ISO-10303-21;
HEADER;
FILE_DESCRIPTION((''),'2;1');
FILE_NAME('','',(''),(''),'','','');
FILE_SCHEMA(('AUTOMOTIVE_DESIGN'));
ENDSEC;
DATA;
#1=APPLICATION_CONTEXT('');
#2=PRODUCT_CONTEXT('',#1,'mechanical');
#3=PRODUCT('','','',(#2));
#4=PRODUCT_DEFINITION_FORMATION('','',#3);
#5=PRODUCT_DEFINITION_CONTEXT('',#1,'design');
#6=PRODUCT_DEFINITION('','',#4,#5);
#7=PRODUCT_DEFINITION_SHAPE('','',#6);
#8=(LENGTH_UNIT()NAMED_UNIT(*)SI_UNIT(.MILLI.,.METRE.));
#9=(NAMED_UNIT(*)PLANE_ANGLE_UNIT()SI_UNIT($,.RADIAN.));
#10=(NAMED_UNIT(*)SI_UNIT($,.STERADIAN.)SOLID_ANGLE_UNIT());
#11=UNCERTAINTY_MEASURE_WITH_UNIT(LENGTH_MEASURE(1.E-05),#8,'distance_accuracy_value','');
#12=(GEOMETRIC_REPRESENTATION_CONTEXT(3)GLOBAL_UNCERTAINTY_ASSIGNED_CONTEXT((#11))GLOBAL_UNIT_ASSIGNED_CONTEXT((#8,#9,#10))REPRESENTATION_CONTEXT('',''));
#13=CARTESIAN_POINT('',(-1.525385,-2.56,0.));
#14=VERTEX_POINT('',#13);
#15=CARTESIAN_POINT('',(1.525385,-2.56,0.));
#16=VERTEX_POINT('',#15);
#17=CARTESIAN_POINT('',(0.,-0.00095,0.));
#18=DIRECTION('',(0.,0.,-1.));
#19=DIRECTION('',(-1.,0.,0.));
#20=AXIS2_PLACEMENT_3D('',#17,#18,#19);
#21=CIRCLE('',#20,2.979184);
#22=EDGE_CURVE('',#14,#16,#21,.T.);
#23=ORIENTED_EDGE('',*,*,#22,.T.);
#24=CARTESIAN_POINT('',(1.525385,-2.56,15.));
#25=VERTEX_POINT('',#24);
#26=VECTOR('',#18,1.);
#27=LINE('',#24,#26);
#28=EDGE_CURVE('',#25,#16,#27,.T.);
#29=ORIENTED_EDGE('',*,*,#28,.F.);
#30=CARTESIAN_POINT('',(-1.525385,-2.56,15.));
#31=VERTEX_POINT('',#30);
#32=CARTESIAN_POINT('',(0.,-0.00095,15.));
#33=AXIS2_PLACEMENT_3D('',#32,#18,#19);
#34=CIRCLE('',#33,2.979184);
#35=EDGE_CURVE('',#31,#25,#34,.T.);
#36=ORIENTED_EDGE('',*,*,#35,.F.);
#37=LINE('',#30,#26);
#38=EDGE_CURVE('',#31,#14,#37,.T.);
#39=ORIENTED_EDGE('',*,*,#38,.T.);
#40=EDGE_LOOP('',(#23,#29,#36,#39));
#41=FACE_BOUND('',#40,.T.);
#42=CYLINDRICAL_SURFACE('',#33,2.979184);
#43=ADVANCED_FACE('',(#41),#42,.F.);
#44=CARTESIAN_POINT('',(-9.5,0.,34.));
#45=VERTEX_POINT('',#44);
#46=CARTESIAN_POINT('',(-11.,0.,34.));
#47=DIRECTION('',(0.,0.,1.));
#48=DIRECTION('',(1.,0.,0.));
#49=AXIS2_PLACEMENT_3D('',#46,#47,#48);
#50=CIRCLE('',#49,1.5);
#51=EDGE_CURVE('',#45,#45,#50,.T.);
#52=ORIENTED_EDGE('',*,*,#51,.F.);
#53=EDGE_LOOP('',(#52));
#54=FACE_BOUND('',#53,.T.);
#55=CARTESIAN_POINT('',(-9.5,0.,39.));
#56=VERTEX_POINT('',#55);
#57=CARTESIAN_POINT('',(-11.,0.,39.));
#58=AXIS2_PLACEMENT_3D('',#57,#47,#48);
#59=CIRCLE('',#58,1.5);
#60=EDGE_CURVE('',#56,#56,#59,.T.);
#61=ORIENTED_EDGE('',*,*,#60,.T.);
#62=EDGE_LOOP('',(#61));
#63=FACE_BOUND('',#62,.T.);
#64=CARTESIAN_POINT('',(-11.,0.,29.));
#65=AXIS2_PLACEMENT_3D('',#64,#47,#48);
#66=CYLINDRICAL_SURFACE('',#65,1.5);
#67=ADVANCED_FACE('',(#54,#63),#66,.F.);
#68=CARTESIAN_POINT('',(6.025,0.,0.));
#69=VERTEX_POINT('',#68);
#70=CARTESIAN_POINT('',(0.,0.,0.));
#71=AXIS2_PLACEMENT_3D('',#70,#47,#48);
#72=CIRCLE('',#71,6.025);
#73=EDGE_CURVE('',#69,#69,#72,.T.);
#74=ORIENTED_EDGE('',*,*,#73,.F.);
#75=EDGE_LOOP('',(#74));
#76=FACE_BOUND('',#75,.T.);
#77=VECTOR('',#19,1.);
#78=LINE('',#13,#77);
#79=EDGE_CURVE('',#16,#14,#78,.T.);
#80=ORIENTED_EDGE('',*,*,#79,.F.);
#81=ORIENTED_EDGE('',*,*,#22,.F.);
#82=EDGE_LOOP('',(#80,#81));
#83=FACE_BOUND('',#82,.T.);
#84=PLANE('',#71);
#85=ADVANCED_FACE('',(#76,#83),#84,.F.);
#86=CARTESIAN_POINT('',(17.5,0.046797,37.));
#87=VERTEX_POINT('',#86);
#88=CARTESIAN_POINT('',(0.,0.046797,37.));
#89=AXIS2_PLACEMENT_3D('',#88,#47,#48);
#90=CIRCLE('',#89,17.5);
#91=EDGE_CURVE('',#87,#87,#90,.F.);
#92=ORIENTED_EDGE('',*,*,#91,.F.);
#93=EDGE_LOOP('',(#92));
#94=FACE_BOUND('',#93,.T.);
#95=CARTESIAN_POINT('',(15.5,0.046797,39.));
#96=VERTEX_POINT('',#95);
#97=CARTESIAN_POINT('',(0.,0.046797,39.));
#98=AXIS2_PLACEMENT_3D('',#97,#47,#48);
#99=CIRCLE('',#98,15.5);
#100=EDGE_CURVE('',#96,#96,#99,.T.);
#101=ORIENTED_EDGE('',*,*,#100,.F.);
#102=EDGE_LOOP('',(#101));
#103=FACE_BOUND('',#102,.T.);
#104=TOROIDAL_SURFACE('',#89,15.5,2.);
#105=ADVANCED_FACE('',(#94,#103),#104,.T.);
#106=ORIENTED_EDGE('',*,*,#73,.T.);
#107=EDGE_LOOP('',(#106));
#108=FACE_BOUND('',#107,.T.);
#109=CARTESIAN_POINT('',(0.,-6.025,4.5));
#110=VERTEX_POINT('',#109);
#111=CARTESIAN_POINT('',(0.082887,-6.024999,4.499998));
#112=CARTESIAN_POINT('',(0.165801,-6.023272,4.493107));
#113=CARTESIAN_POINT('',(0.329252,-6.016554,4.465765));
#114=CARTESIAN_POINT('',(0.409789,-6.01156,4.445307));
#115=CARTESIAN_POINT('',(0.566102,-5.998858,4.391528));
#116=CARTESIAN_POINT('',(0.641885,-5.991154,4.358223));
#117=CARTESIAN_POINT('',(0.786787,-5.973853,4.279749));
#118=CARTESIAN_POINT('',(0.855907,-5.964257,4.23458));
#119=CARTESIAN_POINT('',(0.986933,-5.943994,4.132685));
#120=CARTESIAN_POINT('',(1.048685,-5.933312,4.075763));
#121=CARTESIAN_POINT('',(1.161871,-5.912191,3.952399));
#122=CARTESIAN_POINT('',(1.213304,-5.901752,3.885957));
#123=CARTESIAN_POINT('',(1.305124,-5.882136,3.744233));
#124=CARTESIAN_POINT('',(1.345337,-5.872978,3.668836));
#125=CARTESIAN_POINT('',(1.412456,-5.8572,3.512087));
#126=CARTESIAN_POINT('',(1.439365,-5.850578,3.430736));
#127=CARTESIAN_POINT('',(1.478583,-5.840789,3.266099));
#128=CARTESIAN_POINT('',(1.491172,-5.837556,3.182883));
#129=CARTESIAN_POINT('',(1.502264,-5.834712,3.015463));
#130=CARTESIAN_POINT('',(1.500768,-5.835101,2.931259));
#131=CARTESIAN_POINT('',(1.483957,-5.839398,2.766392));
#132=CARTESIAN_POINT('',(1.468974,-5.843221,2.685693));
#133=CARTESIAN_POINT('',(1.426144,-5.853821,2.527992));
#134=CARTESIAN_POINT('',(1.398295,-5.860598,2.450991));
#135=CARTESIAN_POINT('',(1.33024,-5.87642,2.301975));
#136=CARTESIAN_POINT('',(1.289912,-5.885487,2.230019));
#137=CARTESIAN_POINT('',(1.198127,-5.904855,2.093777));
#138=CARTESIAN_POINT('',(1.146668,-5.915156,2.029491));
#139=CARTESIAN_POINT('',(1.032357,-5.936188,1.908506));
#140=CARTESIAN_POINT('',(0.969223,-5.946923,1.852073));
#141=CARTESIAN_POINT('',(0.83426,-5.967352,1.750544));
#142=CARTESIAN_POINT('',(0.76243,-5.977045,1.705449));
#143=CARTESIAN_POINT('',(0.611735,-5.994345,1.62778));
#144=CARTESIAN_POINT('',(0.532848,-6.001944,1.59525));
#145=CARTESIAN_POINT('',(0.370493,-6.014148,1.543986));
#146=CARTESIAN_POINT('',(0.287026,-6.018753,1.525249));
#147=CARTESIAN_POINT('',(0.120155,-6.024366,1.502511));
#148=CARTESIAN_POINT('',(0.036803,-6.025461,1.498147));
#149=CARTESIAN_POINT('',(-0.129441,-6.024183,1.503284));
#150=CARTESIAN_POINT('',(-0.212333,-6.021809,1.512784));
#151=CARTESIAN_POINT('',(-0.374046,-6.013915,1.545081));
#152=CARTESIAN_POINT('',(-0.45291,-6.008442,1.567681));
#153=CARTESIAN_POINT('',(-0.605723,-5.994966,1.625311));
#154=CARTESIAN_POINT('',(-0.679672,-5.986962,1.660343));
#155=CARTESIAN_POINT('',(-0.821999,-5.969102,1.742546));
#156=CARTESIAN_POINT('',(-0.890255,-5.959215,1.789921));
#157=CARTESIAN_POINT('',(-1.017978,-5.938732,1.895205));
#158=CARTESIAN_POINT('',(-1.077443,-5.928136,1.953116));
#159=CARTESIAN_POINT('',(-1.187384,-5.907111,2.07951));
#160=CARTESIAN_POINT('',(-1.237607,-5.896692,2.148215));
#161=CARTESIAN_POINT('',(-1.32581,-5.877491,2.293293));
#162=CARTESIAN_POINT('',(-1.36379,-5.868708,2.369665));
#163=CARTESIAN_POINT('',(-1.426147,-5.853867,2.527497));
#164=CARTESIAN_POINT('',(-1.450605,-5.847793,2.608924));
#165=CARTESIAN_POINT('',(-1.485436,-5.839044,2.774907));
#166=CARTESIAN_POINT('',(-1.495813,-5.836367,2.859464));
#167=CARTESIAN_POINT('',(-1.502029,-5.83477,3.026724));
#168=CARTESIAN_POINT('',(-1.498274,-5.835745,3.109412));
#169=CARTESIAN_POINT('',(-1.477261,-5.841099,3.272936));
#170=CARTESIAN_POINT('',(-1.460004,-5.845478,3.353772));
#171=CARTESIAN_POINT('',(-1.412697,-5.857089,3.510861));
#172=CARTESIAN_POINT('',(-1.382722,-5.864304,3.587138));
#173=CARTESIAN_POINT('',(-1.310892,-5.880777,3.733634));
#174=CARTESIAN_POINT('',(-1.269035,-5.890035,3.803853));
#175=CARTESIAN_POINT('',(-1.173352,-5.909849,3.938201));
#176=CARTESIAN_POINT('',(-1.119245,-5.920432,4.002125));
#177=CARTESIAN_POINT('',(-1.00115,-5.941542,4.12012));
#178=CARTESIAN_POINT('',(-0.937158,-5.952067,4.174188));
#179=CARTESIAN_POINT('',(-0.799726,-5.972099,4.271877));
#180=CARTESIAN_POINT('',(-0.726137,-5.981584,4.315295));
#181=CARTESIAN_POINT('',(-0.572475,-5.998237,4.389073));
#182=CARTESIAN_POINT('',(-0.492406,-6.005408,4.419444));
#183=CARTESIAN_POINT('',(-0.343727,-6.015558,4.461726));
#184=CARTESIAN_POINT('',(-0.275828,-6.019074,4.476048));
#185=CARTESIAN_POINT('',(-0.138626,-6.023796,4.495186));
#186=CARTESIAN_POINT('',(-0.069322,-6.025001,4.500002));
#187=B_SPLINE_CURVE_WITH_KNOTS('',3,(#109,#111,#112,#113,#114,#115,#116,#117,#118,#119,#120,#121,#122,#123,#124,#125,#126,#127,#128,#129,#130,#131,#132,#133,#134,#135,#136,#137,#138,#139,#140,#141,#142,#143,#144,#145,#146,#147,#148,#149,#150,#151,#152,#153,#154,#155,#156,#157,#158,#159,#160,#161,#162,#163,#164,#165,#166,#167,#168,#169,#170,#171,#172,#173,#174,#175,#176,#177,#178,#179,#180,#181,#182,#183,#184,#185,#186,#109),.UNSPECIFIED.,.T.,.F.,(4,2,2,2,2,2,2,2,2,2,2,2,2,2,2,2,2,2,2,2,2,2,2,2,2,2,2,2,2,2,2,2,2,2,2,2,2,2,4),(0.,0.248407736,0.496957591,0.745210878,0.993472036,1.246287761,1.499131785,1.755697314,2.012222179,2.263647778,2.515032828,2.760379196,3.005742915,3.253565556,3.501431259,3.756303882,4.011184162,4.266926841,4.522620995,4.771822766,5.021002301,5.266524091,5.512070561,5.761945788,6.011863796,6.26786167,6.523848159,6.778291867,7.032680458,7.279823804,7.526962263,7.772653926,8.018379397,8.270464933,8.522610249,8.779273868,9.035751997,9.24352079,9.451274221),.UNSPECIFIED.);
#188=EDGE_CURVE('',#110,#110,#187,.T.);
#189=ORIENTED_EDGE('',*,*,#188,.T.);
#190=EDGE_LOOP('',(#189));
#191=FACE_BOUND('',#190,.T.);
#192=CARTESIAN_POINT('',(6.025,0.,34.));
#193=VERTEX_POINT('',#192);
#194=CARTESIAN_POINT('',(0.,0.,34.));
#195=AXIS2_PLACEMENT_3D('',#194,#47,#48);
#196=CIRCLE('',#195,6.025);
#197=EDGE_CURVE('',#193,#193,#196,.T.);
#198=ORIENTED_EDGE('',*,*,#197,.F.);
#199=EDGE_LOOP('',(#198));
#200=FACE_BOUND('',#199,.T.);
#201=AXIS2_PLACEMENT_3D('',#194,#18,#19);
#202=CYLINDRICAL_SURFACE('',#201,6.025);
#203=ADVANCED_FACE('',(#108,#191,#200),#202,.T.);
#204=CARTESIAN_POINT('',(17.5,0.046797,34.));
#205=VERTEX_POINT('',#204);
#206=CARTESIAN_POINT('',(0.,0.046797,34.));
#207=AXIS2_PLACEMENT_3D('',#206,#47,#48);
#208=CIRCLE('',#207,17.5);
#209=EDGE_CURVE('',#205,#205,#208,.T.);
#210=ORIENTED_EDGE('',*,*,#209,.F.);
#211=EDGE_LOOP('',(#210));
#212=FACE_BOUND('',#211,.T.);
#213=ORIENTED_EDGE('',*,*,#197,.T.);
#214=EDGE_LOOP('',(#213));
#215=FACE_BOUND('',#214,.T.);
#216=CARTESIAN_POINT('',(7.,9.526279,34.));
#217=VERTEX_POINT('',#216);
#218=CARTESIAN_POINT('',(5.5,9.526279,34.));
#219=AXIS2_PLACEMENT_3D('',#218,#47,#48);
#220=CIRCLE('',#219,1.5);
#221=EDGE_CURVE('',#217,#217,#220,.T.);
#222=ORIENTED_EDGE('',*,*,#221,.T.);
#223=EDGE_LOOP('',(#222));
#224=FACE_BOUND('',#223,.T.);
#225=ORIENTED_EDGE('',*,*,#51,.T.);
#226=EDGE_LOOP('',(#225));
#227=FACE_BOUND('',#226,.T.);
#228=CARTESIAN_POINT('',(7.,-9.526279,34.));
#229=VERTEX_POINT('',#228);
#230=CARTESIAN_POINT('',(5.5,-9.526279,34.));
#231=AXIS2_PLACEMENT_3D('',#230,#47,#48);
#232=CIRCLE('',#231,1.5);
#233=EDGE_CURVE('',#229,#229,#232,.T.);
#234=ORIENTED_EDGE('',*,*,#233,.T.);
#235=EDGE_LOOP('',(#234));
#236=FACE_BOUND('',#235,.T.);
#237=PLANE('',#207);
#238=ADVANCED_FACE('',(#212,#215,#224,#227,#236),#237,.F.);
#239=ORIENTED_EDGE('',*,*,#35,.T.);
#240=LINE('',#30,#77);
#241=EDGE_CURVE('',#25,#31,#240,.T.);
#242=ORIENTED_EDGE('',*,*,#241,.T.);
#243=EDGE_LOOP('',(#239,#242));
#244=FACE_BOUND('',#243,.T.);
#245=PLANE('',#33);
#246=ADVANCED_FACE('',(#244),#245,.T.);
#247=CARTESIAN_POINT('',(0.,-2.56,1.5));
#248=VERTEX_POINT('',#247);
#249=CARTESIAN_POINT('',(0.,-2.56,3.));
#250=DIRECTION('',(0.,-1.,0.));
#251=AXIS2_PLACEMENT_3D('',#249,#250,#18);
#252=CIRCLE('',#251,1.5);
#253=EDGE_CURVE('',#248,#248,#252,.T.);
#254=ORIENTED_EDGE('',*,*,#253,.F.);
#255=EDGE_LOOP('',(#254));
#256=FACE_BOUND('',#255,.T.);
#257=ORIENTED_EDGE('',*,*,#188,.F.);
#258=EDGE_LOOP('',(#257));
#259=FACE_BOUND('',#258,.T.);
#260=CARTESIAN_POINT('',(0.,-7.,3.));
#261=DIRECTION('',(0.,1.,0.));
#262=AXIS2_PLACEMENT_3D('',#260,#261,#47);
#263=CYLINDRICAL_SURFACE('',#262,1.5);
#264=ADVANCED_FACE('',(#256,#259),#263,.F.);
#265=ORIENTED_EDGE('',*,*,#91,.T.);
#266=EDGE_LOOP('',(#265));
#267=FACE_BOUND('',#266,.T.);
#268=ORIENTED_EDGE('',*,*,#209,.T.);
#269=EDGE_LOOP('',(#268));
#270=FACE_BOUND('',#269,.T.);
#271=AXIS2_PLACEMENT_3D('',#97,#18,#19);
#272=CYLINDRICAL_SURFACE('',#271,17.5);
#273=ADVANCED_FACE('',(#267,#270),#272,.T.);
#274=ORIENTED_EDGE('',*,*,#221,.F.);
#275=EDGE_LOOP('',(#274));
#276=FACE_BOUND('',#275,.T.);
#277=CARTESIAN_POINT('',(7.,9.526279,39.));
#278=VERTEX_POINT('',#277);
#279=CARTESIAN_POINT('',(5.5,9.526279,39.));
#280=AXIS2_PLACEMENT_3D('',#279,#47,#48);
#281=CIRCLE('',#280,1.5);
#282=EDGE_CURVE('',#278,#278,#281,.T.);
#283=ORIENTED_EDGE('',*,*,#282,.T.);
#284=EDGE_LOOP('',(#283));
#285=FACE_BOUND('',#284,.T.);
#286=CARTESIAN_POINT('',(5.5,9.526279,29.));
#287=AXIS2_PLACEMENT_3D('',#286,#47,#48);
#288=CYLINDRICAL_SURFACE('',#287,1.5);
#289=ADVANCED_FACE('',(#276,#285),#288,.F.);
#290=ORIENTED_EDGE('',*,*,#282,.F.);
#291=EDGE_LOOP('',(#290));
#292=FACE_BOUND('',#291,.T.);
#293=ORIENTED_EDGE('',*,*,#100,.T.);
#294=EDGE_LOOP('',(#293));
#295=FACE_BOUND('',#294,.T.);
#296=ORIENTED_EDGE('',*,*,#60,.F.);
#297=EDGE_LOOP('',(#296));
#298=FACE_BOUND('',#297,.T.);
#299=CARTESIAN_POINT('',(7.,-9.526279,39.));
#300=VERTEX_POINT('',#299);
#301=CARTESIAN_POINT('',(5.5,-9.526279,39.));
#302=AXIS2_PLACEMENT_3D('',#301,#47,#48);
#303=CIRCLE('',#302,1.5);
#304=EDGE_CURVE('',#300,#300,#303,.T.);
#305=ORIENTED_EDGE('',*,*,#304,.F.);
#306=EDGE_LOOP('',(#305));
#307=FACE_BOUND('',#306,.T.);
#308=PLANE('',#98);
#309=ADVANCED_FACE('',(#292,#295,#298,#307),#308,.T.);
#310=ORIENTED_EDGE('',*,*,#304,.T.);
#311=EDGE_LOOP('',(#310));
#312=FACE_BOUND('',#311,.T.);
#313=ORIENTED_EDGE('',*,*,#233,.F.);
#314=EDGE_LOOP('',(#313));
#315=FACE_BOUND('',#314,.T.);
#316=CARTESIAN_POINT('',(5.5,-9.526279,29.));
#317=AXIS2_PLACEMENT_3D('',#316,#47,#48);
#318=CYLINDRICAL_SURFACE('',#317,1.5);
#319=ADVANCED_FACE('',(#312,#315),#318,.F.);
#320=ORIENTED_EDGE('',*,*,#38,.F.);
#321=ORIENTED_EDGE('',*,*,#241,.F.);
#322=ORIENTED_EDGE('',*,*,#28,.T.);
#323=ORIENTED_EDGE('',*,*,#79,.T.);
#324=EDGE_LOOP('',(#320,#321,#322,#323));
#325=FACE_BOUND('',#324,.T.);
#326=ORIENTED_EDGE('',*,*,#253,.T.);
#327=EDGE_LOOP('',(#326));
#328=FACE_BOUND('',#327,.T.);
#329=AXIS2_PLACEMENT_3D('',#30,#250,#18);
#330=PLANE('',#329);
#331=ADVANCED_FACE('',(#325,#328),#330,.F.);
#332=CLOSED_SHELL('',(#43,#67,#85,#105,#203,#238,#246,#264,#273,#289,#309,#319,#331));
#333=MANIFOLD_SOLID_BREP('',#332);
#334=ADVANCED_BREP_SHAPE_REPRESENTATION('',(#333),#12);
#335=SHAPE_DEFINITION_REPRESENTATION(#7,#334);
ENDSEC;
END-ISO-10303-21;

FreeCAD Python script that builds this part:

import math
import FreeCAD as App
import Part
import Sketcher

V = App.Vector
Q = App.Units.Quantity


def edges_at(feature, points):
    """Names of the edges that pass closest to the given points."""
    edges = feature.Shape.Edges
    near = lambda p: min(range(len(edges)), key=lambda i: edges[i].distToShape(Part.Vertex(*p))[0])
    return sorted({f"Edge{near(p) + 1}" for p in points})

doc = App.newDocument("Part")
params = doc.addObject("Spreadsheet::Sheet", "Params")
for row, (alias, value) in enumerate([
    ("sketch1_diameter", "12.05 mm"),
    ("pad1_length", "34 mm"),
    ("sketch2_diameter", "35 mm"),
    ("pad2_length", "5 mm"),
    ("sketch3_diameter", "3 mm"),
    ("pocket1_length", "10 mm"),
    ("fillet_radius", "2 mm"),
    ("pocket2_length", "15 mm"),
    ("sketch5_diameter", "3 mm"),
    ("pocket3_length", "7 mm"),
], start=1):
    params.set(f"A{row}", alias)
    params.set(f"B{row}", "=" + value)
    params.setAlias(f"B{row}", alias)

body = doc.addObject("PartDesign::Body", "Body")

sketch1 = doc.addObject("Sketcher::SketchObject", "Sketch")
body.addObject(sketch1)
sketch1.AttachmentSupport = (doc.XY_Plane, [""])
sketch1.MapMode = "FlatFace"
sketch1.addGeometry(Part.Circle(V(0, 0, 0), V(0, 0, 1), 6), False)
sketch1.addConstraint([
    Sketcher.Constraint("Coincident", 0, 3, -1, 1),
    Sketcher.Constraint("Diameter", 0, Q("12.05 mm")),
])
sketch1.setExpression("Constraints[1]", "Params.sketch1_diameter")
pad1 = doc.addObject("PartDesign::Pad", "Pad")
body.addObject(pad1)
pad1.Profile = sketch1
pad1.setExpression("Length", "Params.pad1_length")

sketch2 = doc.addObject("Sketcher::SketchObject", "Sketch001")
body.addObject(sketch2)
sketch2.AttachmentSupport = (doc.XY_Plane, [""])
sketch2.MapMode = "FlatFace"
sketch2.AttachmentOffset = App.Placement(V(0, 0, 34), App.Rotation())
sketch2.addGeometry(Part.Circle(V(0, 0, 0), V(0, 0, 1), 18), False)
sketch2.addConstraint([
    Sketcher.Constraint("PointOnObject", 0, 3, -2),
    Sketcher.Constraint("Diameter", 0, Q("35 mm")),
    Sketcher.Constraint("DistanceY", -1, 1, 0, 3, Q("0.046797 mm")),
])
sketch2.setExpression("Constraints[1]", "Params.sketch2_diameter")
pad2 = doc.addObject("PartDesign::Pad", "Pad001")
body.addObject(pad2)
pad2.Profile = sketch2
pad2.setExpression("Length", "Params.pad2_length")

sketch3 = doc.addObject("Sketcher::SketchObject", "Sketch002")
body.addObject(sketch3)
sketch3.AttachmentSupport = (doc.XY_Plane, [""])
sketch3.MapMode = "FlatFace"
sketch3.AttachmentOffset = App.Placement(V(0, 0, 39), App.Rotation())
sketch3.addGeometry([
    Part.Circle(V(-11, 0, 0), V(0, 0, 1), 1.5),
    Part.Circle(V(5.5, 9.5, 0), V(0, 0, 1), 1.5),
    Part.Circle(V(5.5, -9.5, 0), V(0, 0, 1), 1.5),
], False)
sketch3.addConstraint([
    Sketcher.Constraint("Equal", 0, 1),
    Sketcher.Constraint("Equal", 1, 2),
    Sketcher.Constraint("Symmetric", 1, 3, 2, 3, -1),
    Sketcher.Constraint("PointOnObject", 0, 3, -1),
    Sketcher.Constraint("Diameter", 0, Q("3 mm")),
    Sketcher.Constraint("DistanceX", 0, 3, -1, 1, Q("11 mm")),
    Sketcher.Constraint("DistanceX", -1, 1, 1, 3, Q("5.5 mm")),
    Sketcher.Constraint("DistanceY", -1, 1, 1, 3, Q("9.526279 mm")),
])
sketch3.setExpression("Constraints[4]", "Params.sketch3_diameter")
pocket1 = doc.addObject("PartDesign::Pocket", "Pocket")
body.addObject(pocket1)
pocket1.Profile = sketch3
pocket1.setExpression("Length", "Params.pocket1_length")
doc.recompute()

fillet = doc.addObject("PartDesign::Fillet", "Fillet")
body.addObject(fillet)
fillet.Base = (pocket1, edges_at(pocket1, [(-17.5, 0.047, 39)]))
fillet.setExpression("Radius", "Params.fillet_radius")

sketch4 = doc.addObject("Sketcher::SketchObject", "Sketch003")
body.addObject(sketch4)
sketch4.AttachmentSupport = (doc.XY_Plane, [""])
sketch4.MapMode = "FlatFace"
sketch4.addGeometry([
    Part.LineSegment(V(1.5, -2.6, 0), V(-1.5, -2.6, 0)),
    Part.ArcOfCircle(Part.Circle(V(0, 0, 0), V(0, 0, 1), 3), math.radians(-59), math.radians(239)),
], False)
sketch4.addConstraint([
    Sketcher.Constraint("Coincident", 0, 1, 1, 1),
    Sketcher.Constraint("Coincident", 1, 2, 0, 2),
    Sketcher.Constraint("Horizontal", 0),
    Sketcher.Constraint("PointOnObject", 1, 3, -2),
    Sketcher.Constraint("DistanceY", 0, 1, -1, 1, Q("2.56 mm")),
    Sketcher.Constraint("Radius", 1, Q("2.979184 mm")),
    Sketcher.Constraint("DistanceX", 0, 2, 0, 1, Q("3.05077 mm")),
])
pocket2 = doc.addObject("PartDesign::Pocket", "Pocket001")
body.addObject(pocket2)
pocket2.Profile = sketch4
pocket2.setExpression("Length", "Params.pocket2_length")
pocket2.Reversed = True

sketch5 = doc.addObject("Sketcher::SketchObject", "Sketch004")
body.addObject(sketch5)
sketch5.AttachmentSupport = (doc.XZ_Plane, [""])
sketch5.MapMode = "FlatFace"
sketch5.addGeometry(Part.Circle(V(0, 3, 0), V(0, 0, 1), 1.5), False)
sketch5.addConstraint([
    Sketcher.Constraint("PointOnObject", 0, 3, -2),
    Sketcher.Constraint("Diameter", 0, Q("3 mm")),
    Sketcher.Constraint("DistanceY", -1, 1, 0, 3, Q("3 mm")),
])
sketch5.setExpression("Constraints[1]", "Params.sketch5_diameter")
pocket3 = doc.addObject("PartDesign::Pocket", "Pocket002")
body.addObject(pocket3)
pocket3.Profile = sketch5
pocket3.setExpression("Length", "Params.pocket3_length")
pocket3.Reversed = True

doc.recompute()
